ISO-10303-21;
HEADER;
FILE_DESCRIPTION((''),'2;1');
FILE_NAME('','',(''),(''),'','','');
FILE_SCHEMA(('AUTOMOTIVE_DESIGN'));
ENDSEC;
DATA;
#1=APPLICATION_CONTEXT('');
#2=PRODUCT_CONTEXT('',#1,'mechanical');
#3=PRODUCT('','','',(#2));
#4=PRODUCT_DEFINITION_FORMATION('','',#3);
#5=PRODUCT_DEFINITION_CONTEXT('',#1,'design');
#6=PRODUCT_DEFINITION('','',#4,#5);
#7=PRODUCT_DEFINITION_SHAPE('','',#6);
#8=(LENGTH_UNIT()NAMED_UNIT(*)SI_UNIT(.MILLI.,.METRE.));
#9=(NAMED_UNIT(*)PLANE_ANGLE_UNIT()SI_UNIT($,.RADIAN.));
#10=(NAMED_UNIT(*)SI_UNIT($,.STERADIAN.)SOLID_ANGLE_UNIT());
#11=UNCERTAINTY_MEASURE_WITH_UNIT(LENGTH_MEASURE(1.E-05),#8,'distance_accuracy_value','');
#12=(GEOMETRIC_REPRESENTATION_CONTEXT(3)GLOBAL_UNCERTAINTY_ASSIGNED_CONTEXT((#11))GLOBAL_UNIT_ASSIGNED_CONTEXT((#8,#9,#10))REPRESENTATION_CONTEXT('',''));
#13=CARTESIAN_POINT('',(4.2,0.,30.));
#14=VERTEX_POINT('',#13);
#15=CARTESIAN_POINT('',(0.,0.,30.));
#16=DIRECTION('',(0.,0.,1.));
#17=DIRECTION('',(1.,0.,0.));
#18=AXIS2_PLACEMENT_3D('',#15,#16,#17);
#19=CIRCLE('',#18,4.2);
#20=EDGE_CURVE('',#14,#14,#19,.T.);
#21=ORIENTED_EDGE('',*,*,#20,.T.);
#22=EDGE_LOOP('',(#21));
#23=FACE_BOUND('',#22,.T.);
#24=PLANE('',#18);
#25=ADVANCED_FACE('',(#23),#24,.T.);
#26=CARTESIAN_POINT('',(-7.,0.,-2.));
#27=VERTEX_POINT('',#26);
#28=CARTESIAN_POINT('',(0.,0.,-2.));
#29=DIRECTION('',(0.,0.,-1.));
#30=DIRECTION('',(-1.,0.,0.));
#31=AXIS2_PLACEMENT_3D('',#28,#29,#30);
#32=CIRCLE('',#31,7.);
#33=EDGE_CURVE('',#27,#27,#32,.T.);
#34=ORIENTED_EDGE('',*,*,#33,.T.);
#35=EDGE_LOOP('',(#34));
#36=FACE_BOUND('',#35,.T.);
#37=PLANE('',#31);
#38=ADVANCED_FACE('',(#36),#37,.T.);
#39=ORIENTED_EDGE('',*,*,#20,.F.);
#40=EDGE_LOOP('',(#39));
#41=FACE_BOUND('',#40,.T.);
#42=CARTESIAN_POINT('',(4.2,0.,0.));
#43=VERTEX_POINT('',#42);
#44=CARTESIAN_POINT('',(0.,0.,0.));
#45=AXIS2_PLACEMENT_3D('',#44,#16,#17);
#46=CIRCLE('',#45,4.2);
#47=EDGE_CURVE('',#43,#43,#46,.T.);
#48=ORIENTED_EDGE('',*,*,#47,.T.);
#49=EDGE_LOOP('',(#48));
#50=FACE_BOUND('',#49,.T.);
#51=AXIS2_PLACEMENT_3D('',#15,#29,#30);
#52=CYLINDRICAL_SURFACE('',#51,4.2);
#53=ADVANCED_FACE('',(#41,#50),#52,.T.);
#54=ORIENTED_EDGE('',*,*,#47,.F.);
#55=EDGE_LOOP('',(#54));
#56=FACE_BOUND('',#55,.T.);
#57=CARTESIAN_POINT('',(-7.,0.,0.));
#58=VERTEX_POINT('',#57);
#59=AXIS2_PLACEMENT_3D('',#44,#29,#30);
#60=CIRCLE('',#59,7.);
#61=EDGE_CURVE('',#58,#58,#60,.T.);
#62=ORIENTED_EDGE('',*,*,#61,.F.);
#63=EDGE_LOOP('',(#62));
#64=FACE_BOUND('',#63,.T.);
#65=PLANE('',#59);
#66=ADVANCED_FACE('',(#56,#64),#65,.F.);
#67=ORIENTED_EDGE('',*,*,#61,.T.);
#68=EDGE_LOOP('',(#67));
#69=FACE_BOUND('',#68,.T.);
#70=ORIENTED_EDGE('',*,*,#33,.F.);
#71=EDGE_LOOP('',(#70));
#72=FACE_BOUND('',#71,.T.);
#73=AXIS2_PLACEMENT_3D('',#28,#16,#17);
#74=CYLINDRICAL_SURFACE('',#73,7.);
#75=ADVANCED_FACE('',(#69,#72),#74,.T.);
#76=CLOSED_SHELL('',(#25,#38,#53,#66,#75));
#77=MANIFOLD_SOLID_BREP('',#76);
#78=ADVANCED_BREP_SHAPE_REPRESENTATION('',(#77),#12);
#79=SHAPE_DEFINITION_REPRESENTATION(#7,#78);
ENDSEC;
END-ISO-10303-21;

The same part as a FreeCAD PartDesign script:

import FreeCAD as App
import Part
import Sketcher
from FreeCAD import Vector

doc = App.newDocument("Part")
body = doc.addObject("PartDesign::Body", "Body")

# Sketch on XY plane
sketch1 = doc.addObject("Sketcher::SketchObject", "Sketch")
body.addObject(sketch1)
sketch1.AttachmentSupport = (doc.XY_Plane, [""])
sketch1.MapMode = "FlatFace"
sketch1.addGeometry(Part.Circle(Vector(0, 0, 0), Vector(0, 0, 1), 4.2), False)
sketch1.addConstraint([
    Sketcher.Constraint("Coincident", 0, 3, -1, 1),
    Sketcher.Constraint("Diameter", 0, 8.4),
])
pad1 = doc.addObject("PartDesign::Pad", "Pad")
body.addObject(pad1)
pad1.Profile = sketch1
pad1.Length = 30

# Sketch on XY plane
sketch2 = doc.addObject("Sketcher::SketchObject", "Sketch001")
body.addObject(sketch2)
sketch2.AttachmentSupport = (doc.XY_Plane, [""])
sketch2.MapMode = "FlatFace"
sketch2.addGeometry(Part.Circle(Vector(0, 0, 0), Vector(0, 0, 1), 7), False)
sketch2.addConstraint([
    Sketcher.Constraint("Coincident", 0, 3, -1, 1),
    Sketcher.Constraint("Diameter", 0, 14.0),
])
pad2 = doc.addObject("PartDesign::Pad", "Pad001")
body.addObject(pad2)
pad2.Profile = sketch2
pad2.Length = 2
pad2.Reversed = True

doc.recompute()
